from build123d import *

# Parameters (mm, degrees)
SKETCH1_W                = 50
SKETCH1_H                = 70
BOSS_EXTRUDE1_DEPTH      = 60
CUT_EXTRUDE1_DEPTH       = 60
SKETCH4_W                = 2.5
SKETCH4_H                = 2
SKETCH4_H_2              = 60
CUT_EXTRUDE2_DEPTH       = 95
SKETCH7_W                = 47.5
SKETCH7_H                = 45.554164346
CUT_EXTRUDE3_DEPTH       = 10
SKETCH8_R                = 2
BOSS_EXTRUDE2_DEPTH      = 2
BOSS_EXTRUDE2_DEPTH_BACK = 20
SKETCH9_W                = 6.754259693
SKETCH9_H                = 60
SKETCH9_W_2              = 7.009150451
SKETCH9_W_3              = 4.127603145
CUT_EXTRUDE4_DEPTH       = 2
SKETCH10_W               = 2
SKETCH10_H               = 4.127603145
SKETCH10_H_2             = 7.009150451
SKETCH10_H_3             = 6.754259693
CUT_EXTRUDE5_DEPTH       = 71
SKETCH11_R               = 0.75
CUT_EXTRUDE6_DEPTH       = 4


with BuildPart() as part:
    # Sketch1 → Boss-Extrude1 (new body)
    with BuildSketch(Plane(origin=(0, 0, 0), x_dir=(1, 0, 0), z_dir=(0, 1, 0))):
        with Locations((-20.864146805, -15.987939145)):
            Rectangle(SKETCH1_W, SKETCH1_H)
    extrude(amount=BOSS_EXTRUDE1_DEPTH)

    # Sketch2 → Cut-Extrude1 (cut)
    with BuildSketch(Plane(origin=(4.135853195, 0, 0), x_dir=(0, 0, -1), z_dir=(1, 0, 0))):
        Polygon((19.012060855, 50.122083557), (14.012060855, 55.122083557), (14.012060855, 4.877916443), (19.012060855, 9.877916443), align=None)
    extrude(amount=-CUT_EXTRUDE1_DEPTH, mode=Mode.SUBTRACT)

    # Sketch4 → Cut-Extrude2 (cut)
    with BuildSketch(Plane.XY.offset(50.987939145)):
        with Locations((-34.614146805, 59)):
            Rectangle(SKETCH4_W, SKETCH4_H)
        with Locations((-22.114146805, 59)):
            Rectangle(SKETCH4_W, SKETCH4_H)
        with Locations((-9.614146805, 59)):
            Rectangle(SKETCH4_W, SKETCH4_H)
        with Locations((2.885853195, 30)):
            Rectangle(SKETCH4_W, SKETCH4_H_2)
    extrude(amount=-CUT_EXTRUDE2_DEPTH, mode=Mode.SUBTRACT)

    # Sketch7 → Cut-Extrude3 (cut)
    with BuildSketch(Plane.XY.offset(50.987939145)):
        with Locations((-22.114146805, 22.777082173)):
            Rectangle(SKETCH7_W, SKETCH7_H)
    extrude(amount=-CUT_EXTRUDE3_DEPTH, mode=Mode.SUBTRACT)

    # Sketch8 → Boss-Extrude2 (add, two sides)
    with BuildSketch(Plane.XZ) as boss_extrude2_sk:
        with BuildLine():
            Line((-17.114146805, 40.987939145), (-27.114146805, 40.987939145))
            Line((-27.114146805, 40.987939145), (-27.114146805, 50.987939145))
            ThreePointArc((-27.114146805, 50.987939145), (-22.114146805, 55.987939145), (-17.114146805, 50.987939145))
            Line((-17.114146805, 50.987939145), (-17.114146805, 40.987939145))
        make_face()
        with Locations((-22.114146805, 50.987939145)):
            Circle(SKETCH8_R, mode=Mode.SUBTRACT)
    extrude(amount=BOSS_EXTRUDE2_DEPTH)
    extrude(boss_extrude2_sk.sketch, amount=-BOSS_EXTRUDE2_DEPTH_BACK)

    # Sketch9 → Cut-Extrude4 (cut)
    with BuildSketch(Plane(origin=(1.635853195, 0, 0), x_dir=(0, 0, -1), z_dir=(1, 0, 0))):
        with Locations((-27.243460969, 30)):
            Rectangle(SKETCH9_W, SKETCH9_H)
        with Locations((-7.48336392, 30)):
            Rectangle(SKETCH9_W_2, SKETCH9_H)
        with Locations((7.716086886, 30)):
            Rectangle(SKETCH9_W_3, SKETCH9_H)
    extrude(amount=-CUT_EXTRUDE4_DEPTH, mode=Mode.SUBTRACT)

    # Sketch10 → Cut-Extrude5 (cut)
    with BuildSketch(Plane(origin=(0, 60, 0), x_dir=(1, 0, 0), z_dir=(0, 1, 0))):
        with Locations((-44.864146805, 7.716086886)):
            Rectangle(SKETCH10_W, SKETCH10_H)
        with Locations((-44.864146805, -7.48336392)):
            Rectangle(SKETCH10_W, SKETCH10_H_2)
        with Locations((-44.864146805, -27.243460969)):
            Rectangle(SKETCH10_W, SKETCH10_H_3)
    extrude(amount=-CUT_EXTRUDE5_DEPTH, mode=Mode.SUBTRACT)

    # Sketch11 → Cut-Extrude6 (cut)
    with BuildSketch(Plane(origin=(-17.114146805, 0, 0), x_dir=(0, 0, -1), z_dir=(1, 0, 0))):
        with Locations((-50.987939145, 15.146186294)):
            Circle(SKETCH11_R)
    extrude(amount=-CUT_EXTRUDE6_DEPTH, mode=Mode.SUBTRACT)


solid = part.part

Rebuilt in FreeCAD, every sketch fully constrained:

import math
import FreeCAD as App
import Part
import Sketcher

V = App.Vector

doc = App.newDocument("Part")
params = doc.addObject("Spreadsheet::Sheet", "Params")
for row, (alias, value) in enumerate([
    ("sketch1_width", "50 mm"),
    ("sketch1_height", "70 mm"),
    ("pad1_length", "60 mm"),
    ("pocket1_length", "60 mm"),
    ("sketch3_height", "2 mm"),
    ("sketch3_height2", "60 mm"),
    ("sketch3_width", "2.5 mm"),
    ("pocket2_length", "95 mm"),
    ("sketch4_width", "47.5 mm"),
    ("pocket3_length", "10 mm"),
    ("sketch5_diameter", "4 mm"),
    ("sketch5_radius", "5 mm"),
    ("pad2_length", "2 mm"),
    ("pad2_length2", "20 mm"),
    ("sketch6_width", "60 mm"),
    ("pocket4_length", "2 mm"),
    ("sketch7_width", "2 mm"),
    ("pocket5_length", "71 mm"),
    ("sketch8_diameter", "1.5 mm"),
    ("pocket6_length", "4 mm"),
], start=1):
    params.set(f"A{row}", alias)
    params.set(f"B{row}", "=" + value)
    params.setAlias(f"B{row}", alias)

body = doc.addObject("PartDesign::Body", "Body")

sketch1 = doc.addObject("Sketcher::SketchObject", "Sketch")
body.addObject(sketch1)
sketch1.AttachmentSupport = (doc.XZ_Plane, [""])
sketch1.MapMode = "FlatFace"
sketch1.addGeometry(Part.LineSegment(V(-45.864147, -19.012061, 0), V(-45.864147, 50.987939, 0)), False)
sketch1.addGeometry(Part.LineSegment(V(-45.864147, 50.987939, 0), V(4.135853, 50.987939, 0)), False)
sketch1.addGeometry(Part.LineSegment(V(4.135853, 50.987939, 0), V(4.135853, -19.012061, 0)), False)
sketch1.addGeometry(Part.LineSegment(V(4.135853, -19.012061, 0), V(-45.864147, -19.012061, 0)), False)
sketch1.addConstraint(Sketcher.Constraint("Coincident", 0, 2, 1, 1))
sketch1.addConstraint(Sketcher.Constraint("Coincident", 1, 2, 2, 1))
sketch1.addConstraint(Sketcher.Constraint("Coincident", 2, 2, 3, 1))
sketch1.addConstraint(Sketcher.Constraint("Coincident", 3, 2, 0, 1))
sketch1.addConstraint(Sketcher.Constraint("Vertical", 0))
sketch1.addConstraint(Sketcher.Constraint("Horizontal", 1))
sketch1.addConstraint(Sketcher.Constraint("Vertical", 2))
sketch1.addConstraint(Sketcher.Constraint("Horizontal", 3))
sketch1.addConstraint(Sketcher.Constraint("DistanceX", 1, 1, 1, 2, 50.0))
sketch1.addConstraint(Sketcher.Constraint("DistanceY", 0, 1, 0, 2, 70.0))
sketch1.addConstraint(Sketcher.Constraint("DistanceY", -1, 1, 0, 2, 50.987939))
sketch1.addConstraint(Sketcher.Constraint("DistanceX", 0, 2, -1, 1, 45.864147))
sketch1.setExpression("Constraints[8]", "Params.sketch1_width")
sketch1.setExpression("Constraints[9]", "Params.sketch1_height")
pad1 = doc.addObject("PartDesign::Pad", "Pad")
body.addObject(pad1)
pad1.Profile = sketch1
pad1.setExpression("Length", "Params.pad1_length")
pad1.Reversed = True

sketch2 = doc.addObject("Sketcher::SketchObject", "Sketch001")
body.addObject(sketch2)
sketch2.AttachmentSupport = (doc.YZ_Plane, [""])
sketch2.MapMode = "FlatFace"
sketch2.AttachmentOffset = App.Placement(V(0, 0, 4.135853), App.Rotation())
sketch2.addGeometry(Part.LineSegment(V(50.122084, -19.012061, 0), V(55.122084, -14.012061, 0)), False)
sketch2.addGeometry(Part.LineSegment(V(55.122084, -14.012061, 0), V(4.877916, -14.012061, 0)), False)
sketch2.addGeometry(Part.LineSegment(V(4.877916, -14.012061, 0), V(9.877916, -19.012061, 0)), False)
sketch2.addGeometry(Part.LineSegment(V(9.877916, -19.012061, 0), V(50.122084, -19.012061, 0)), False)
sketch2.addConstraint(Sketcher.Constraint("Coincident", 0, 2, 1, 1))
sketch2.addConstraint(Sketcher.Constraint("Coincident", 1, 2, 2, 1))
sketch2.addConstraint(Sketcher.Constraint("Coincident", 2, 2, 3, 1))
sketch2.addConstraint(Sketcher.Constraint("Coincident", 3, 2, 0, 1))
sketch2.addConstraint(Sketcher.Constraint("Horizontal", 1))
sketch2.addConstraint(Sketcher.Constraint("Horizontal", 3))
sketch2.addConstraint(Sketcher.Constraint("Perpendicular", 0, 2))
sketch2.addConstraint(Sketcher.Constraint("Equal", 0, 2))
sketch2.addConstraint(Sketcher.Constraint("DistanceX", 1, 2, 2, 2, 5.0))
sketch2.addConstraint(Sketcher.Constraint("DistanceX", 1, 2, 1, 1, 50.244167))
sketch2.addConstraint(Sketcher.Constraint("DistanceY", 0, 2, -1, 1, 14.012061))
sketch2.addConstraint(Sketcher.Constraint("DistanceX", -1, 1, 0, 2, 55.122084))
pocket1 = doc.addObject("PartDesign::Pocket", "Pocket")
body.addObject(pocket1)
pocket1.Profile = sketch2
pocket1.setExpression("Length", "Params.pocket1_length")

sketch3 = doc.addObject("Sketcher::SketchObject", "Sketch002")
body.addObject(sketch3)
sketch3.AttachmentSupport = (doc.XY_Plane, [""])
sketch3.MapMode = "FlatFace"
sketch3.AttachmentOffset = App.Placement(V(0, 0, 50.987939), App.Rotation())
sketch3.addGeometry(Part.LineSegment(V(-35.864147, 60, 0), V(-35.864147, 58, 0)), False)
sketch3.addGeometry(Part.LineSegment(V(-35.864147, 58, 0), V(-33.364147, 58, 0)), False)
sketch3.addGeometry(Part.LineSegment(V(-33.364147, 58, 0), V(-33.364147, 60, 0)), False)
sketch3.addGeometry(Part.LineSegment(V(-33.364147, 60, 0), V(-35.864147, 60, 0)), False)
sketch3.addGeometry(Part.LineSegment(V(-23.364147, 60, 0), V(-23.364147, 58, 0)), False)
sketch3.addGeometry(Part.LineSegment(V(-23.364147, 58, 0), V(-20.864147, 58, 0)), False)
sketch3.addGeometry(Part.LineSegment(V(-20.864147, 58, 0), V(-20.864147, 60, 0)), False)
sketch3.addGeometry(Part.LineSegment(V(-20.864147, 60, 0), V(-23.364147, 60, 0)), False)
sketch3.addGeometry(Part.LineSegment(V(-10.864147, 60, 0), V(-10.864147, 58, 0)), False)
sketch3.addGeometry(Part.LineSegment(V(-10.864147, 58, 0), V(-8.364147, 58, 0)), False)
sketch3.addGeometry(Part.LineSegment(V(-8.364147, 58, 0), V(-8.364147, 60, 0)), False)
sketch3.addGeometry(Part.LineSegment(V(-8.364147, 60, 0), V(-10.864147, 60, 0)), False)
sketch3.addGeometry(Part.LineSegment(V(1.635853, 60, 0), V(1.635853, 0, 0)), False)
sketch3.addGeometry(Part.LineSegment(V(1.635853, 0, 0), V(4.135853, 0, 0)), False)
sketch3.addGeometry(Part.LineSegment(V(4.135853, 0, 0), V(4.135853, 60, 0)), False)
sketch3.addGeometry(Part.LineSegment(V(4.135853, 60, 0), V(1.635853, 60, 0)), False)
sketch3.addConstraint(Sketcher.Constraint("Coincident", 0, 2, 1, 1))
sketch3.addConstraint(Sketcher.Constraint("Coincident", 1, 2, 2, 1))
sketch3.addConstraint(Sketcher.Constraint("Coincident", 2, 2, 3, 1))
sketch3.addConstraint(Sketcher.Constraint("Coincident", 3, 2, 0, 1))
sketch3.addConstraint(Sketcher.Constraint("Coincident", 4, 2, 5, 1))
sketch3.addConstraint(Sketcher.Constraint("Coincident", 5, 2, 6, 1))
sketch3.addConstraint(Sketcher.Constraint("Coincident", 6, 2, 7, 1))
sketch3.addConstraint(Sketcher.Constraint("Coincident", 7, 2, 4, 1))
sketch3.addConstraint(Sketcher.Constraint("Coincident", 8, 2, 9, 1))
sketch3.addConstraint(Sketcher.Constraint("Coincident", 9, 2, 10, 1))
sketch3.addConstraint(Sketcher.Constraint("Coincident", 10, 2, 11, 1))
sketch3.addConstraint(Sketcher.Constraint("Coincident", 11, 2, 8, 1))
sketch3.addConstraint(Sketcher.Constraint("Coincident", 12, 2, 13, 1))
sketch3.addConstraint(Sketcher.Constraint("Coincident", 13, 2, 14, 1))
sketch3.addConstraint(Sketcher.Constraint("Coincident", 14, 2, 15, 1))
sketch3.addConstraint(Sketcher.Constraint("Coincident", 15, 2, 12, 1))
sketch3.addConstraint(Sketcher.Constraint("Vertical", 0))
sketch3.addConstraint(Sketcher.Constraint("Horizontal", 1))
sketch3.addConstraint(Sketcher.Constraint("Vertical", 2))
sketch3.addConstraint(Sketcher.Constraint("Horizontal", 3))
sketch3.addConstraint(Sketcher.Constraint("Vertical", 4))
sketch3.addConstraint(Sketcher.Constraint("Horizontal", 5))
sketch3.addConstraint(Sketcher.Constraint("Vertical", 6))
sketch3.addConstraint(Sketcher.Constraint("Horizontal", 7))
sketch3.addConstraint(Sketcher.Constraint("Vertical", 8))
sketch3.addConstraint(Sketcher.Constraint("Horizontal", 9))
sketch3.addConstraint(Sketcher.Constraint("Vertical", 10))
sketch3.addConstraint(Sketcher.Constraint("Horizontal", 11))
sketch3.addConstraint(Sketcher.Constraint("Vertical", 12))
sketch3.addConstraint(Sketcher.Constraint("Horizontal", 13))
sketch3.addConstraint(Sketcher.Constraint("Vertical", 14))
sketch3.addConstraint(Sketcher.Constraint("Horizontal", 15))
sketch3.addConstraint(Sketcher.Constraint("PointOnObject", 12, 2, -1))
sketch3.addConstraint(Sketcher.Constraint("Horizontal", 1, 2, 4, 2))
sketch3.addConstraint(Sketcher.Constraint("Horizontal", 3, 2, 6, 2))
sketch3.addConstraint(Sketcher.Constraint("Horizontal", 5, 2, 8, 2))
sketch3.addConstraint(Sketcher.Constraint("Horizontal", 7, 2, 10, 2))
sketch3.addConstraint(Sketcher.Constraint("Horizontal", 11, 2, 14, 2))
sketch3.addConstraint(Sketcher.Constraint("Equal", 3, 5))
sketch3.addConstraint(Sketcher.Constraint("Equal", 7, 9))
sketch3.addConstraint(Sketcher.Constraint("Equal", 11, 13))
sketch3.addConstraint(Sketcher.Constraint("DistanceY", 0, 2, 0, 1, 2.0))
sketch3.addConstraint(Sketcher.Constraint("DistanceY", 12, 2, 12, 1, 60.0))
sketch3.addConstraint(Sketcher.Constraint("DistanceX", 1, 1, 1, 2, 2.5))
sketch3.addConstraint(Sketcher.Constraint("DistanceX", 1, 2, 4, 2, 10.0))
sketch3.addConstraint(Sketcher.Constraint("DistanceX", 5, 2, 8, 2, 10.0))
sketch3.addConstraint(Sketcher.Constraint("DistanceX", 9, 2, 12, 2, 10.0))
sketch3.addConstraint(Sketcher.Constraint("DistanceX", 0, 2, -1, 1, 35.864147))
sketch3.setExpression("Constraints[41]", "Params.sketch3_height")
sketch3.setExpression("Constraints[42]", "Params.sketch3_height2")
sketch3.setExpression("Constraints[43]", "Params.sketch3_width")
pocket2 = doc.addObject("PartDesign::Pocket", "Pocket001")
body.addObject(pocket2)
pocket2.Profile = sketch3
pocket2.setExpression("Length", "Params.pocket2_length")

sketch4 = doc.addObject("Sketcher::SketchObject", "Sketch003")
body.addObject(sketch4)
sketch4.AttachmentSupport = (doc.XY_Plane, [""])
sketch4.MapMode = "FlatFace"
sketch4.AttachmentOffset = App.Placement(V(0, 0, 50.987939), App.Rotation())
sketch4.addGeometry(Part.LineSegment(V(-45.864147, 45.554164, 0), V(-45.864147, 0, 0)), False)
sketch4.addGeometry(Part.LineSegment(V(-45.864147, 0, 0), V(1.635853, 0, 0)), False)
sketch4.addGeometry(Part.LineSegment(V(1.635853, 0, 0), V(1.635853, 45.554164, 0)), False)
sketch4.addGeometry(Part.LineSegment(V(1.635853, 45.554164, 0), V(-45.864147, 45.554164, 0)), False)
sketch4.addConstraint(Sketcher.Constraint("Coincident", 0, 2, 1, 1))
sketch4.addConstraint(Sketcher.Constraint("Coincident", 1, 2, 2, 1))
sketch4.addConstraint(Sketcher.Constraint("Coincident", 2, 2, 3, 1))
sketch4.addConstraint(Sketcher.Constraint("Coincident", 3, 2, 0, 1))
sketch4.addConstraint(Sketcher.Constraint("Vertical", 0))
sketch4.addConstraint(Sketcher.Constraint("Horizontal", 1))
sketch4.addConstraint(Sketcher.Constraint("Vertical", 2))
sketch4.addConstraint(Sketcher.Constraint("Horizontal", 3))
sketch4.addConstraint(Sketcher.Constraint("PointOnObject", 0, 2, -1))
sketch4.addConstraint(Sketcher.Constraint("DistanceX", 1, 1, 1, 2, 47.5))
sketch4.addConstraint(Sketcher.Constraint("DistanceY", 0, 2, 0, 1, 45.554164))
sketch4.addConstraint(Sketcher.Constraint("DistanceX", 0, 2, -1, 1, 45.864147))
sketch4.setExpression("Constraints[9]", "Params.sketch4_width")
pocket3 = doc.addObject("PartDesign::Pocket", "Pocket002")
body.addObject(pocket3)
pocket3.Profile = sketch4
pocket3.setExpression("Length", "Params.pocket3_length")

sketch5 = doc.addObject("Sketcher::SketchObject", "Sketch004")
body.addObject(sketch5)
sketch5.AttachmentSupport = (doc.XZ_Plane, [""])
sketch5.MapMode = "FlatFace"
sketch5.addGeometry(Part.LineSegment(V(-27.114147, 40.987939, 0), V(-17.114147, 40.987939, 0)), False)
sketch5.addGeometry(Part.LineSegment(V(-17.114147, 40.987939, 0), V(-17.114147, 50.987939, 0)), False)
sketch5.addGeometry(Part.ArcOfCircle(Part.Circle(V(-22.114147, 50.987939, 0), V(0, 0, 1), 5), math.radians(0), math.radians(180)), False)
sketch5.addGeometry(Part.LineSegment(V(-27.114147, 50.987939, 0), V(-27.114147, 40.987939, 0)), False)
sketch5.addGeometry(Part.Circle(V(-22.114147, 50.987939, 0), V(0, 0, 1), 2), False)
sketch5.addConstraint(Sketcher.Constraint("Coincident", 0, 2, 1, 1))
sketch5.addConstraint(Sketcher.Constraint("Tangent", 1, 2, 2, 1))
sketch5.addConstraint(Sketcher.Constraint("Tangent", 2, 2, 3, 1))
sketch5.addConstraint(Sketcher.Constraint("Coincident", 3, 2, 0, 1))
sketch5.addConstraint(Sketcher.Constraint("Horizontal", 0))
sketch5.addConstraint(Sketcher.Constraint("Vertical", 1))
sketch5.addConstraint(Sketcher.Constraint("Vertical", 3))
sketch5.addConstraint(Sketcher.Constraint("Coincident", 4, 3, 2, 3))
sketch5.addConstraint(Sketcher.Constraint("Equal", 0, 1))
sketch5.addConstraint(Sketcher.Constraint("Diameter", 4, 4.0))
sketch5.addConstraint(Sketcher.Constraint("Radius", 2, 5.0))
sketch5.addConstraint(Sketcher.Constraint("DistanceY", -1, 1, 2, 3, 50.987939))
sketch5.addConstraint(Sketcher.Constraint("DistanceX", 2, 3, -1, 1, 22.114147))
sketch5.setExpression("Constraints[9]", "Params.sketch5_diameter")
sketch5.setExpression("Constraints[10]", "Params.sketch5_radius")
pad2 = doc.addObject("PartDesign::Pad", "Pad001")
body.addObject(pad2)
pad2.Profile = sketch5
pad2.Type = "TwoLengths"
pad2.setExpression("Length", "Params.pad2_length")
pad2.setExpression("Length2", "Params.pad2_length2")

sketch6 = doc.addObject("Sketcher::SketchObject", "Sketch005")
body.addObject(sketch6)
sketch6.AttachmentSupport = (doc.YZ_Plane, [""])
sketch6.MapMode = "FlatFace"
sketch6.AttachmentOffset = App.Placement(V(0, 0, 1.635853), App.Rotation())
sketch6.addGeometry(Part.LineSegment(V(60, 30.620591, 0), V(0, 30.620591, 0)), False)
sketch6.addGeometry(Part.LineSegment(V(0, 30.620591, 0), V(0, 23.866331, 0)), False)
sketch6.addGeometry(Part.LineSegment(V(0, 23.866331, 0), V(60, 23.866331, 0)), False)
sketch6.addGeometry(Part.LineSegment(V(60, 23.866331, 0), V(60, 30.620591, 0)), False)
sketch6.addGeometry(Part.LineSegment(V(60, 10.987939, 0), V(0, 10.987939, 0)), False)
sketch6.addGeometry(Part.LineSegment(V(0, 10.987939, 0), V(0, 3.978789, 0)), False)
sketch6.addGeometry(Part.LineSegment(V(0, 3.978789, 0), V(60, 3.978789, 0)), False)
sketch6.addGeometry(Part.LineSegment(V(60, 3.978789, 0), V(60, 10.987939, 0)), False)
sketch6.addGeometry(Part.LineSegment(V(60, -5.652285, 0), V(0, -5.652285, 0)), False)
sketch6.addGeometry(Part.LineSegment(V(0, -5.652285, 0), V(0, -9.779888, 0)), False)
sketch6.addGeometry(Part.LineSegment(V(0, -9.779888, 0), V(60, -9.779888, 0)), False)
sketch6.addGeometry(Part.LineSegment(V(60, -9.779888, 0), V(60, -5.652285, 0)), False)
sketch6.addConstraint(Sketcher.Constraint("Coincident", 0, 2, 1, 1))
sketch6.addConstraint(Sketcher.Constraint("Coincident", 1, 2, 2, 1))
sketch6.addConstraint(Sketcher.Constraint("Coincident", 2, 2, 3, 1))
sketch6.addConstraint(Sketcher.Constraint("Coincident", 3, 2, 0, 1))
sketch6.addConstraint(Sketcher.Constraint("Coincident", 4, 2, 5, 1))
sketch6.addConstraint(Sketcher.Constraint("Coincident", 5, 2, 6, 1))
sketch6.addConstraint(Sketcher.Constraint("Coincident", 6, 2, 7, 1))
sketch6.addConstraint(Sketcher.Constraint("Coincident", 7, 2, 4, 1))
sketch6.addConstraint(Sketcher.Constraint("Coincident", 8, 2, 9, 1))
sketch6.addConstraint(Sketcher.Constraint("Coincident", 9, 2, 10, 1))
sketch6.addConstraint(Sketcher.Constraint("Coincident", 10, 2, 11, 1))
sketch6.addConstraint(Sketcher.Constraint("Coincident", 11, 2, 8, 1))
sketch6.addConstraint(Sketcher.Constraint("Horizontal", 0))
sketch6.addConstraint(Sketcher.Constraint("Vertical", 1))
sketch6.addConstraint(Sketcher.Constraint("Horizontal", 2))
sketch6.addConstraint(Sketcher.Constraint("Vertical", 3))
sketch6.addConstraint(Sketcher.Constraint("Horizontal", 4))
sketch6.addConstraint(Sketcher.Constraint("Vertical", 5))
sketch6.addConstraint(Sketcher.Constraint("Horizontal", 6))
sketch6.addConstraint(Sketcher.Constraint("Vertical", 7))
sketch6.addConstraint(Sketcher.Constraint("Horizontal", 8))
sketch6.addConstraint(Sketcher.Constraint("Vertical", 9))
sketch6.addConstraint(Sketcher.Constraint("Horizontal", 10))
sketch6.addConstraint(Sketcher.Constraint("Vertical", 11))
sketch6.addConstraint(Sketcher.Constraint("PointOnObject", 0, 2, -2))
sketch6.addConstraint(Sketcher.Constraint("PointOnObject", 4, 2, -2))
sketch6.addConstraint(Sketcher.Constraint("PointOnObject", 8, 2, -2))
sketch6.addConstraint(Sketcher.Constraint("Vertical", 3, 2, 6, 2))
sketch6.addConstraint(Sketcher.Constraint("Vertical", 7, 2, 10, 2))
sketch6.addConstraint(Sketcher.Constraint("DistanceX", 0, 2, 0, 1, 60.0))
sketch6.addConstraint(Sketcher.Constraint("DistanceY", 1, 2, 1, 1, 6.75426))
sketch6.addConstraint(Sketcher.Constraint("DistanceY", 5, 2, 5, 1, 7.00915))
sketch6.addConstraint(Sketcher.Constraint("DistanceY", 9, 2, 9, 1, 4.127603))
sketch6.addConstraint(Sketcher.Constraint("DistanceY", -1, 1, 0, 2, 30.620591))
sketch6.addConstraint(Sketcher.Constraint("DistanceY", -1, 1, 4, 2, 10.987939))
sketch6.addConstraint(Sketcher.Constraint("DistanceY", 9, 2, -1, 1, 9.779888))
sketch6.setExpression("Constraints[29]", "Params.sketch6_width")
pocket4 = doc.addObject("PartDesign::Pocket", "Pocket003")
body.addObject(pocket4)
pocket4.Profile = sketch6
pocket4.setExpression("Length", "Params.pocket4_length")

sketch7 = doc.addObject("Sketcher::SketchObject", "Sketch006")
body.addObject(sketch7)
sketch7.AttachmentSupport = (doc.XZ_Plane, [""])
sketch7.MapMode = "FlatFace"
sketch7.AttachmentOffset = App.Placement(V(0, 0, -60), App.Rotation())
sketch7.addGeometry(Part.LineSegment(V(-45.864147, -9.779888, 0), V(-45.864147, -5.652285, 0)), False)
sketch7.addGeometry(Part.LineSegment(V(-45.864147, -5.652285, 0), V(-43.864147, -5.652285, 0)), False)
sketch7.addGeometry(Part.LineSegment(V(-43.864147, -5.652285, 0), V(-43.864147, -9.779888, 0)), False)
sketch7.addGeometry(Part.LineSegment(V(-43.864147, -9.779888, 0), V(-45.864147, -9.779888, 0)), False)
sketch7.addGeometry(Part.LineSegment(V(-45.864147, 3.978789, 0), V(-45.864147, 10.987939, 0)), False)
sketch7.addGeometry(Part.LineSegment(V(-45.864147, 10.987939, 0), V(-43.864147, 10.987939, 0)), False)
sketch7.addGeometry(Part.LineSegment(V(-43.864147, 10.987939, 0), V(-43.864147, 3.978789, 0)), False)
sketch7.addGeometry(Part.LineSegment(V(-43.864147, 3.978789, 0), V(-45.864147, 3.978789, 0)), False)
sketch7.addGeometry(Part.LineSegment(V(-45.864147, 23.866331, 0), V(-45.864147, 30.620591, 0)), False)
sketch7.addGeometry(Part.LineSegment(V(-45.864147, 30.620591, 0), V(-43.864147, 30.620591, 0)), False)
sketch7.addGeometry(Part.LineSegment(V(-43.864147, 30.620591, 0), V(-43.864147, 23.866331, 0)), False)
sketch7.addGeometry(Part.LineSegment(V(-43.864147, 23.866331, 0), V(-45.864147, 23.866331, 0)), False)
sketch7.addConstraint(Sketcher.Constraint("Coincident", 0, 2, 1, 1))
sketch7.addConstraint(Sketcher.Constraint("Coincident", 1, 2, 2, 1))
sketch7.addConstraint(Sketcher.Constraint("Coincident", 2, 2, 3, 1))
sketch7.addConstraint(Sketcher.Constraint("Coincident", 3, 2, 0, 1))
sketch7.addConstraint(Sketcher.Constraint("Coincident", 4, 2, 5, 1))
sketch7.addConstraint(Sketcher.Constraint("Coincident", 5, 2, 6, 1))
sketch7.addConstraint(Sketcher.Constraint("Coincident", 6, 2, 7, 1))
sketch7.addConstraint(Sketcher.Constraint("Coincident", 7, 2, 4, 1))
sketch7.addConstraint(Sketcher.Constraint("Coincident", 8, 2, 9, 1))
sketch7.addConstraint(Sketcher.Constraint("Coincident", 9, 2, 10, 1))
sketch7.addConstraint(Sketcher.Constraint("Coincident", 10, 2, 11, 1))
sketch7.addConstraint(Sketcher.Constraint("Coincident", 11, 2, 8, 1))
sketch7.addConstraint(Sketcher.Constraint("Vertical", 0))
sketch7.addConstraint(Sketcher.Constraint("Horizontal", 1))
sketch7.addConstraint(Sketcher.Constraint("Vertical", 2))
sketch7.addConstraint(Sketcher.Constraint("Horizontal", 3))
sketch7.addConstraint(Sketcher.Constraint("Vertical", 4))
sketch7.addConstraint(Sketcher.Constraint("Horizontal", 5))
sketch7.addConstraint(Sketcher.Constraint("Vertical", 6))
sketch7.addConstraint(Sketcher.Constraint("Horizontal", 7))
sketch7.addConstraint(Sketcher.Constraint("Vertical", 8))
sketch7.addConstraint(Sketcher.Constraint("Horizontal", 9))
sketch7.addConstraint(Sketcher.Constraint("Vertical", 10))
sketch7.addConstraint(Sketcher.Constraint("Horizontal", 11))
sketch7.addConstraint(Sketcher.Constraint("Vertical", 3, 2, 4, 2))
sketch7.addConstraint(Sketcher.Constraint("Vertical", 2, 2, 5, 2))
sketch7.addConstraint(Sketcher.Constraint("Vertical", 7, 2, 8, 2))
sketch7.addConstraint(Sketcher.Constraint("Vertical", 6, 2, 9, 2))
sketch7.addConstraint(Sketcher.Constraint("DistanceX", 1, 1, 1, 2, 2.0))
sketch7.addConstraint(Sketcher.Constraint("DistanceY", 4, 1, 4, 2, 7.00915))
sketch7.addConstraint(Sketcher.Constraint("DistanceY", 8, 1, 8, 2, 6.75426))
sketch7.addConstraint(Sketcher.Constraint("DistanceY", 0, 1, 0, 2, 4.127603))
sketch7.addConstraint(Sketcher.Constraint("DistanceY", 2, 2, -1, 1, 9.779888))
sketch7.addConstraint(Sketcher.Constraint("DistanceY", -1, 1, 4, 2, 10.987939))
sketch7.addConstraint(Sketcher.Constraint("DistanceY", -1, 1, 8, 2, 30.620591))
sketch7.addConstraint(Sketcher.Constraint("DistanceX", 0, 2, -1, 1, 45.864147))
sketch7.setExpression("Constraints[28]", "Params.sketch7_width")
pocket5 = doc.addObject("PartDesign::Pocket", "Pocket004")
body.addObject(pocket5)
pocket5.Profile = sketch7
pocket5.setExpression("Length", "Params.pocket5_length")
pocket5.Reversed = True

sketch8 = doc.addObject("Sketcher::SketchObject", "Sketch007")
body.addObject(sketch8)
sketch8.AttachmentSupport = (doc.YZ_Plane, [""])
sketch8.MapMode = "FlatFace"
sketch8.AttachmentOffset = App.Placement(V(0, 0, -17.114147), App.Rotation())
sketch8.addGeometry(Part.Circle(V(15.146186, 50.987939, 0), V(0, 0, 1), 0.75), False)
sketch8.addConstraint(Sketcher.Constraint("Diameter", 0, 1.5))
sketch8.addConstraint(Sketcher.Constraint("DistanceY", -1, 1, 0, 3, 50.987939))
sketch8.addConstraint(Sketcher.Constraint("DistanceX", -1, 1, 0, 3, 15.146186))
sketch8.setExpression("Constraints[0]", "Params.sketch8_diameter")
pocket6 = doc.addObject("PartDesign::Pocket", "Pocket005")
body.addObject(pocket6)
pocket6.Profile = sketch8
pocket6.setExpression("Length", "Params.pocket6_length")

doc.recompute()
